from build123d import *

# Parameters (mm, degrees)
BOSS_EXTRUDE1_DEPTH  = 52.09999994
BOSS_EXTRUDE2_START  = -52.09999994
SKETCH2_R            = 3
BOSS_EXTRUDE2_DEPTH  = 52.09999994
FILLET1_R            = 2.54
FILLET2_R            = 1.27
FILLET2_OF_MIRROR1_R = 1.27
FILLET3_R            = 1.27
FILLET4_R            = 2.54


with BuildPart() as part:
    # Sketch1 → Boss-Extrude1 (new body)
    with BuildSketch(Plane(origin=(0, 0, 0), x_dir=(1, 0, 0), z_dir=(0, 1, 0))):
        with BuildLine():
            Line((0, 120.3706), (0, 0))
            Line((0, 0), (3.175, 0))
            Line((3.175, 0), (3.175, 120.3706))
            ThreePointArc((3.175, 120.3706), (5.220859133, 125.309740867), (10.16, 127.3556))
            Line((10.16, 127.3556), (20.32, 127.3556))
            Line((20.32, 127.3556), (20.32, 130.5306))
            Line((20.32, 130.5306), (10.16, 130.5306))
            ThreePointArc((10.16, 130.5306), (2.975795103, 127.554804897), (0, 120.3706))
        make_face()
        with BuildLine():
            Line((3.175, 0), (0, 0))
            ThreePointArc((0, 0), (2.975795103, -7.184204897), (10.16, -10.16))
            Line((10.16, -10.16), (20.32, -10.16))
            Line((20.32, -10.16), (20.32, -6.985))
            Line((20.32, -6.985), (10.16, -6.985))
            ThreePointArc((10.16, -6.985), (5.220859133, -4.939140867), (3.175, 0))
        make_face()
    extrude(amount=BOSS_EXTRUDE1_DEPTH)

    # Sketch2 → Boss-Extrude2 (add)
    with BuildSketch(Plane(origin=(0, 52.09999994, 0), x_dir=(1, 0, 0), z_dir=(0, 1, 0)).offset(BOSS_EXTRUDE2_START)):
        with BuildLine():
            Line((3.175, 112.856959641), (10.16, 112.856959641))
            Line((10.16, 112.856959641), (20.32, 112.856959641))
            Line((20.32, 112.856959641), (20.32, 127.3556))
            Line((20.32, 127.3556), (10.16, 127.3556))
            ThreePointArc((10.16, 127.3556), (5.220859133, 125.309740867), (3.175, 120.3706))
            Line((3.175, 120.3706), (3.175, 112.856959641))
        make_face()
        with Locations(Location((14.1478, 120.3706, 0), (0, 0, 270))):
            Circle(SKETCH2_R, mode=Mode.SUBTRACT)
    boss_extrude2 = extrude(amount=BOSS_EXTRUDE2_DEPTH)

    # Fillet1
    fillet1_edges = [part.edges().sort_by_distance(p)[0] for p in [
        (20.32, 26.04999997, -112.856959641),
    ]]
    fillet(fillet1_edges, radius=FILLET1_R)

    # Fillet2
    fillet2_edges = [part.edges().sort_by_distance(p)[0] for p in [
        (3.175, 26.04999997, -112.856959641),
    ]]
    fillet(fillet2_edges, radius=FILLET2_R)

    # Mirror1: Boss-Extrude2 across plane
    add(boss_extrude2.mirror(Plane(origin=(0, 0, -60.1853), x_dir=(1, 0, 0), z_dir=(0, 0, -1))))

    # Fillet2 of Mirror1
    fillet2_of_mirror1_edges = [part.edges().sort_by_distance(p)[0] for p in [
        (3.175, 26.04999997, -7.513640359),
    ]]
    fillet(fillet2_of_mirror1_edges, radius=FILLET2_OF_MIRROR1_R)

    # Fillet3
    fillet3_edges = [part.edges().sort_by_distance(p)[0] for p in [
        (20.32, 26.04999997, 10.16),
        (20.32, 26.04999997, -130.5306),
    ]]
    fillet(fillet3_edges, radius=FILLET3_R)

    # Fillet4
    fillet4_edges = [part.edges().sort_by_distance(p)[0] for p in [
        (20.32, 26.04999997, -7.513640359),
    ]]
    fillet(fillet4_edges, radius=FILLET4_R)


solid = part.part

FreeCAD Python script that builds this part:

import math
import FreeCAD as App
import Part
import Sketcher

V = App.Vector
Q = App.Units.Quantity


def edges_at(feature, points):
    """Names of the edges that pass closest to the given points."""
    edges = feature.Shape.Edges
    near = lambda p: min(range(len(edges)), key=lambda i: edges[i].distToShape(Part.Vertex(*p))[0])
    return sorted({f"Edge{near(p) + 1}" for p in points})

doc = App.newDocument("Part")
params = doc.addObject("Spreadsheet::Sheet", "Params")
for row, (alias, value) in enumerate([
    ("sketch1_radius", "0.4 in"),
    ("sketch1_width", "0.4 in"),
    ("sketch1_radius2", "0.275 in"),
    ("sketch1_height", "4.739 in"),
    ("pad1_length", "52.1 mm"),
    ("sketch2_width", "0.4 in"),
    ("sketch2_radius", "0.275 in"),
    ("pad2_length", "52.1 mm"),
    ("fillet_radius", "0.1 in"),
    ("fillet2_radius", "0.05 in"),
    ("fillet3_radius", "0.05 in"),
    ("fillet4_radius", "0.05 in"),
    ("fillet5_radius", "0.1 in"),
], start=1):
    params.set(f"A{row}", alias)
    params.set(f"B{row}", "=" + value)
    params.setAlias(f"B{row}", alias)

body = doc.addObject("PartDesign::Body", "Body")

# Sketch on XZ plane
sketch1 = body.newObject("Sketcher::SketchObject", "Sketch")
sketch1.AttachmentSupport = (doc.getObject("XZ_Plane"), [""])
sketch1.MapMode = "FlatFace"
sketch1.addGeometry(Part.LineSegment(V(0, -120.4, 0), V(0, 0, 0)), False)
sketch1.addGeometry(Part.ArcOfCircle(Part.Circle(V(10.2, 0, 0), V(0, 0, 1), 10.2), math.radians(90), math.radians(180)), False)
sketch1.addGeometry(Part.LineSegment(V(10.2, 10.2, 0), V(20.3, 10.2, 0)), False)
sketch1.addGeometry(Part.LineSegment(V(20.3, 10.2, 0), V(20.3, 7, 0)), False)
sketch1.addGeometry(Part.LineSegment(V(20.3, 7, 0), V(10.2, 7, 0)), False)
sketch1.addGeometry(Part.ArcOfCircle(Part.Circle(V(10.2, 0, 0), V(0, 0, 1), 7), math.radians(90), math.radians(180)), False)
sketch1.addGeometry(Part.LineSegment(V(3.2, 0, 0), V(3.2, -120.4, 0)), False)
sketch1.addGeometry(Part.ArcOfCircle(Part.Circle(V(10.2, -120.4, 0), V(0, 0, 1), 7), math.radians(180), math.radians(270)), False)
sketch1.addGeometry(Part.LineSegment(V(10.2, -127.4, 0), V(20.3, -127.4, 0)), False)
sketch1.addGeometry(Part.LineSegment(V(20.3, -127.4, 0), V(20.3, -130.5, 0)), False)
sketch1.addGeometry(Part.LineSegment(V(20.3, -130.5, 0), V(10.2, -130.5, 0)), False)
sketch1.addGeometry(Part.ArcOfCircle(Part.Circle(V(10.2, -120.4, 0), V(0, 0, 1), 10.2), math.radians(180), math.radians(270)), False)
sketch1.addConstraint(Sketcher.Constraint("Tangent", 0, 2, 1, 2))
sketch1.addConstraint(Sketcher.Constraint("Tangent", 1, 1, 2, 1))
sketch1.addConstraint(Sketcher.Constraint("Coincident", 2, 2, 3, 1))
sketch1.addConstraint(Sketcher.Constraint("Coincident", 3, 2, 4, 1))
sketch1.addConstraint(Sketcher.Constraint("Tangent", 4, 2, 5, 1))
sketch1.addConstraint(Sketcher.Constraint("Tangent", 5, 2, 6, 1))
sketch1.addConstraint(Sketcher.Constraint("Tangent", 6, 2, 7, 1))
sketch1.addConstraint(Sketcher.Constraint("Tangent", 7, 2, 8, 1))
sketch1.addConstraint(Sketcher.Constraint("Coincident", 8, 2, 9, 1))
sketch1.addConstraint(Sketcher.Constraint("Coincident", 9, 2, 10, 1))
sketch1.addConstraint(Sketcher.Constraint("Tangent", 10, 2, 11, 2))
sketch1.addConstraint(Sketcher.Constraint("Tangent", 11, 1, 0, 1))
sketch1.addConstraint(Sketcher.Constraint("Vertical", 0))
sketch1.addConstraint(Sketcher.Constraint("Horizontal", 2))
sketch1.addConstraint(Sketcher.Constraint("Vertical", 3))
sketch1.addConstraint(Sketcher.Constraint("Horizontal", 4))
sketch1.addConstraint(Sketcher.Constraint("Vertical", 6))
sketch1.addConstraint(Sketcher.Constraint("Horizontal", 8))
sketch1.addConstraint(Sketcher.Constraint("Vertical", 9))
sketch1.addConstraint(Sketcher.Constraint("Horizontal", 10))
sketch1.addConstraint(Sketcher.Constraint("Coincident", 0, 2, -1, 1))
sketch1.addConstraint(Sketcher.Constraint("Coincident", 5, 3, 1, 3))
sketch1.addConstraint(Sketcher.Constraint("Coincident", 11, 3, 7, 3))
sketch1.addConstraint(Sketcher.Constraint("Equal", 5, 7))
sketch1.addConstraint(Sketcher.Constraint("Vertical", 3, 2, 8, 2))
sketch1.addConstraint(Sketcher.Constraint("Radius", 1, Q("0.4 in")))
sketch1.addConstraint(Sketcher.Constraint("DistanceX", 2, 1, 2, 2, Q("0.4 in")))
sketch1.addConstraint(Sketcher.Constraint("Radius", 5, Q("0.275 in")))
sketch1.addConstraint(Sketcher.Constraint("DistanceY", 0, 1, 0, 2, Q("4.739 in")))
sketch1.setExpression("Constraints[25]", "Params.sketch1_radius")
sketch1.setExpression("Constraints[26]", "Params.sketch1_width")
sketch1.setExpression("Constraints[27]", "Params.sketch1_radius2")
sketch1.setExpression("Constraints[28]", "Params.sketch1_height")
pad1 = body.newObject("PartDesign::Pad", "Pad")
pad1.Profile = sketch1
pad1.setExpression("Length", "Params.pad1_length")
pad1.Reversed = True

# Sketch on XZ plane
sketch2 = body.newObject("Sketcher::SketchObject", "Sketch001")
sketch2.AttachmentSupport = (doc.getObject("XZ_Plane"), [""])
sketch2.MapMode = "FlatFace"
sketch2.addGeometry(Part.LineSegment(V(3.2, -112.9, 0), V(20.3, -112.9, 0)), False)
sketch2.addGeometry(Part.LineSegment(V(20.3, -112.9, 0), V(20.3, -127.4, 0)), False)
sketch2.addGeometry(Part.LineSegment(V(20.3, -127.4, 0), V(10.2, -127.4, 0)), False)
sketch2.addGeometry(Part.ArcOfCircle(Part.Circle(V(10.2, -120.4, 0), V(0, 0, 1), 7), math.radians(180), math.radians(270)), False)
sketch2.addGeometry(Part.LineSegment(V(3.2, -120.4, 0), V(3.2, -112.9, 0)), False)
sketch2.addGeometry(Part.Circle(V(14.1, -120.4, 0), V(0, 0, 1), 3), False)
sketch2.addConstraint(Sketcher.Constraint("Coincident", 0, 2, 1, 1))
sketch2.addConstraint(Sketcher.Constraint("Coincident", 1, 2, 2, 1))
sketch2.addConstraint(Sketcher.Constraint("Tangent", 2, 2, 3, 2))
sketch2.addConstraint(Sketcher.Constraint("Tangent", 3, 1, 4, 1))
sketch2.addConstraint(Sketcher.Constraint("Coincident", 4, 2, 0, 1))
sketch2.addConstraint(Sketcher.Constraint("Horizontal", 0))
sketch2.addConstraint(Sketcher.Constraint("Vertical", 1))
sketch2.addConstraint(Sketcher.Constraint("Horizontal", 2))
sketch2.addConstraint(Sketcher.Constraint("Vertical", 4))
sketch2.addConstraint(Sketcher.Constraint("Horizontal", 3, 3, 5, 3))
sketch2.addConstraint(Sketcher.Constraint("DistanceX", 2, 2, 2, 1, Q("0.4 in")))
sketch2.addConstraint(Sketcher.Constraint("Radius", 3, Q("0.275 in")))
sketch2.addConstraint(Sketcher.Constraint("DistanceX", -1, 1, 3, 3, Q("0.4 in")))
sketch2.addConstraint(Sketcher.Constraint("Diameter", 5, 6.0))
sketch2.addConstraint(Sketcher.Constraint("DistanceY", 3, 3, -1, 1, Q("4.739 in")))
sketch2.addConstraint(Sketcher.Constraint("DistanceX", -1, 1, 5, 3, Q("0.557 in")))
sketch2.addConstraint(Sketcher.Constraint("DistanceY", 1, 2, 1, 1, 14.49864))
sketch2.setExpression("Constraints[10]", "Params.sketch2_width")
sketch2.setExpression("Constraints[11]", "Params.sketch2_radius")
pad2 = body.newObject("PartDesign::Pad", "Pad001")
pad2.Profile = sketch2
pad2.setExpression("Length", "Params.pad2_length")
pad2.Reversed = True
doc.recompute()

fillet = body.newObject("PartDesign::Fillet", "Fillet")
fillet.Base = (pad2, edges_at(pad2, [(20.32, 26.05, -112.857)]))
fillet.setExpression("Radius", "Params.fillet_radius")
doc.recompute()

fillet2 = body.newObject("PartDesign::Fillet", "Fillet001")
fillet2.Base = (fillet, edges_at(fillet, [(3.175, 26.05, -112.857)]))
fillet2.setExpression("Radius", "Params.fillet2_radius")
doc.recompute()

datumplane = body.newObject("PartDesign::Plane", "DatumPlane")
datumplane.AttachmentSupport = (doc.getObject("XY_Plane"), [""])
datumplane.MapMode = "FlatFace"
datumplane.AttachmentOffset = App.Placement(V(0, 0, -2.3695 * 25.4), App.Rotation())
mirrored = body.newObject("PartDesign::Mirrored", "Mirrored")
mirrored.Originals = [pad2]
mirrored.MirrorPlane = (datumplane, [""])
body.Tip = mirrored
doc.recompute()

fillet3 = body.newObject("PartDesign::Fillet", "Fillet002")
fillet3.Base = (mirrored, edges_at(mirrored, [(3.175, 26.05, -7.514)]))
fillet3.setExpression("Radius", "Params.fillet3_radius")
doc.recompute()

fillet4 = body.newObject("PartDesign::Fillet", "Fillet003")
fillet4.Base = (fillet3, edges_at(fillet3, [(20.32, 26.05, 10.16), (20.32, 26.05, -130.531)]))
fillet4.setExpression("Radius", "Params.fillet4_radius")
doc.recompute()

fillet5 = body.newObject("PartDesign::Fillet", "Fillet004")
fillet5.Base = (fillet4, edges_at(fillet4, [(20.32, 26.05, -7.514)]))
fillet5.setExpression("Radius", "Params.fillet5_radius")

doc.recompute()
